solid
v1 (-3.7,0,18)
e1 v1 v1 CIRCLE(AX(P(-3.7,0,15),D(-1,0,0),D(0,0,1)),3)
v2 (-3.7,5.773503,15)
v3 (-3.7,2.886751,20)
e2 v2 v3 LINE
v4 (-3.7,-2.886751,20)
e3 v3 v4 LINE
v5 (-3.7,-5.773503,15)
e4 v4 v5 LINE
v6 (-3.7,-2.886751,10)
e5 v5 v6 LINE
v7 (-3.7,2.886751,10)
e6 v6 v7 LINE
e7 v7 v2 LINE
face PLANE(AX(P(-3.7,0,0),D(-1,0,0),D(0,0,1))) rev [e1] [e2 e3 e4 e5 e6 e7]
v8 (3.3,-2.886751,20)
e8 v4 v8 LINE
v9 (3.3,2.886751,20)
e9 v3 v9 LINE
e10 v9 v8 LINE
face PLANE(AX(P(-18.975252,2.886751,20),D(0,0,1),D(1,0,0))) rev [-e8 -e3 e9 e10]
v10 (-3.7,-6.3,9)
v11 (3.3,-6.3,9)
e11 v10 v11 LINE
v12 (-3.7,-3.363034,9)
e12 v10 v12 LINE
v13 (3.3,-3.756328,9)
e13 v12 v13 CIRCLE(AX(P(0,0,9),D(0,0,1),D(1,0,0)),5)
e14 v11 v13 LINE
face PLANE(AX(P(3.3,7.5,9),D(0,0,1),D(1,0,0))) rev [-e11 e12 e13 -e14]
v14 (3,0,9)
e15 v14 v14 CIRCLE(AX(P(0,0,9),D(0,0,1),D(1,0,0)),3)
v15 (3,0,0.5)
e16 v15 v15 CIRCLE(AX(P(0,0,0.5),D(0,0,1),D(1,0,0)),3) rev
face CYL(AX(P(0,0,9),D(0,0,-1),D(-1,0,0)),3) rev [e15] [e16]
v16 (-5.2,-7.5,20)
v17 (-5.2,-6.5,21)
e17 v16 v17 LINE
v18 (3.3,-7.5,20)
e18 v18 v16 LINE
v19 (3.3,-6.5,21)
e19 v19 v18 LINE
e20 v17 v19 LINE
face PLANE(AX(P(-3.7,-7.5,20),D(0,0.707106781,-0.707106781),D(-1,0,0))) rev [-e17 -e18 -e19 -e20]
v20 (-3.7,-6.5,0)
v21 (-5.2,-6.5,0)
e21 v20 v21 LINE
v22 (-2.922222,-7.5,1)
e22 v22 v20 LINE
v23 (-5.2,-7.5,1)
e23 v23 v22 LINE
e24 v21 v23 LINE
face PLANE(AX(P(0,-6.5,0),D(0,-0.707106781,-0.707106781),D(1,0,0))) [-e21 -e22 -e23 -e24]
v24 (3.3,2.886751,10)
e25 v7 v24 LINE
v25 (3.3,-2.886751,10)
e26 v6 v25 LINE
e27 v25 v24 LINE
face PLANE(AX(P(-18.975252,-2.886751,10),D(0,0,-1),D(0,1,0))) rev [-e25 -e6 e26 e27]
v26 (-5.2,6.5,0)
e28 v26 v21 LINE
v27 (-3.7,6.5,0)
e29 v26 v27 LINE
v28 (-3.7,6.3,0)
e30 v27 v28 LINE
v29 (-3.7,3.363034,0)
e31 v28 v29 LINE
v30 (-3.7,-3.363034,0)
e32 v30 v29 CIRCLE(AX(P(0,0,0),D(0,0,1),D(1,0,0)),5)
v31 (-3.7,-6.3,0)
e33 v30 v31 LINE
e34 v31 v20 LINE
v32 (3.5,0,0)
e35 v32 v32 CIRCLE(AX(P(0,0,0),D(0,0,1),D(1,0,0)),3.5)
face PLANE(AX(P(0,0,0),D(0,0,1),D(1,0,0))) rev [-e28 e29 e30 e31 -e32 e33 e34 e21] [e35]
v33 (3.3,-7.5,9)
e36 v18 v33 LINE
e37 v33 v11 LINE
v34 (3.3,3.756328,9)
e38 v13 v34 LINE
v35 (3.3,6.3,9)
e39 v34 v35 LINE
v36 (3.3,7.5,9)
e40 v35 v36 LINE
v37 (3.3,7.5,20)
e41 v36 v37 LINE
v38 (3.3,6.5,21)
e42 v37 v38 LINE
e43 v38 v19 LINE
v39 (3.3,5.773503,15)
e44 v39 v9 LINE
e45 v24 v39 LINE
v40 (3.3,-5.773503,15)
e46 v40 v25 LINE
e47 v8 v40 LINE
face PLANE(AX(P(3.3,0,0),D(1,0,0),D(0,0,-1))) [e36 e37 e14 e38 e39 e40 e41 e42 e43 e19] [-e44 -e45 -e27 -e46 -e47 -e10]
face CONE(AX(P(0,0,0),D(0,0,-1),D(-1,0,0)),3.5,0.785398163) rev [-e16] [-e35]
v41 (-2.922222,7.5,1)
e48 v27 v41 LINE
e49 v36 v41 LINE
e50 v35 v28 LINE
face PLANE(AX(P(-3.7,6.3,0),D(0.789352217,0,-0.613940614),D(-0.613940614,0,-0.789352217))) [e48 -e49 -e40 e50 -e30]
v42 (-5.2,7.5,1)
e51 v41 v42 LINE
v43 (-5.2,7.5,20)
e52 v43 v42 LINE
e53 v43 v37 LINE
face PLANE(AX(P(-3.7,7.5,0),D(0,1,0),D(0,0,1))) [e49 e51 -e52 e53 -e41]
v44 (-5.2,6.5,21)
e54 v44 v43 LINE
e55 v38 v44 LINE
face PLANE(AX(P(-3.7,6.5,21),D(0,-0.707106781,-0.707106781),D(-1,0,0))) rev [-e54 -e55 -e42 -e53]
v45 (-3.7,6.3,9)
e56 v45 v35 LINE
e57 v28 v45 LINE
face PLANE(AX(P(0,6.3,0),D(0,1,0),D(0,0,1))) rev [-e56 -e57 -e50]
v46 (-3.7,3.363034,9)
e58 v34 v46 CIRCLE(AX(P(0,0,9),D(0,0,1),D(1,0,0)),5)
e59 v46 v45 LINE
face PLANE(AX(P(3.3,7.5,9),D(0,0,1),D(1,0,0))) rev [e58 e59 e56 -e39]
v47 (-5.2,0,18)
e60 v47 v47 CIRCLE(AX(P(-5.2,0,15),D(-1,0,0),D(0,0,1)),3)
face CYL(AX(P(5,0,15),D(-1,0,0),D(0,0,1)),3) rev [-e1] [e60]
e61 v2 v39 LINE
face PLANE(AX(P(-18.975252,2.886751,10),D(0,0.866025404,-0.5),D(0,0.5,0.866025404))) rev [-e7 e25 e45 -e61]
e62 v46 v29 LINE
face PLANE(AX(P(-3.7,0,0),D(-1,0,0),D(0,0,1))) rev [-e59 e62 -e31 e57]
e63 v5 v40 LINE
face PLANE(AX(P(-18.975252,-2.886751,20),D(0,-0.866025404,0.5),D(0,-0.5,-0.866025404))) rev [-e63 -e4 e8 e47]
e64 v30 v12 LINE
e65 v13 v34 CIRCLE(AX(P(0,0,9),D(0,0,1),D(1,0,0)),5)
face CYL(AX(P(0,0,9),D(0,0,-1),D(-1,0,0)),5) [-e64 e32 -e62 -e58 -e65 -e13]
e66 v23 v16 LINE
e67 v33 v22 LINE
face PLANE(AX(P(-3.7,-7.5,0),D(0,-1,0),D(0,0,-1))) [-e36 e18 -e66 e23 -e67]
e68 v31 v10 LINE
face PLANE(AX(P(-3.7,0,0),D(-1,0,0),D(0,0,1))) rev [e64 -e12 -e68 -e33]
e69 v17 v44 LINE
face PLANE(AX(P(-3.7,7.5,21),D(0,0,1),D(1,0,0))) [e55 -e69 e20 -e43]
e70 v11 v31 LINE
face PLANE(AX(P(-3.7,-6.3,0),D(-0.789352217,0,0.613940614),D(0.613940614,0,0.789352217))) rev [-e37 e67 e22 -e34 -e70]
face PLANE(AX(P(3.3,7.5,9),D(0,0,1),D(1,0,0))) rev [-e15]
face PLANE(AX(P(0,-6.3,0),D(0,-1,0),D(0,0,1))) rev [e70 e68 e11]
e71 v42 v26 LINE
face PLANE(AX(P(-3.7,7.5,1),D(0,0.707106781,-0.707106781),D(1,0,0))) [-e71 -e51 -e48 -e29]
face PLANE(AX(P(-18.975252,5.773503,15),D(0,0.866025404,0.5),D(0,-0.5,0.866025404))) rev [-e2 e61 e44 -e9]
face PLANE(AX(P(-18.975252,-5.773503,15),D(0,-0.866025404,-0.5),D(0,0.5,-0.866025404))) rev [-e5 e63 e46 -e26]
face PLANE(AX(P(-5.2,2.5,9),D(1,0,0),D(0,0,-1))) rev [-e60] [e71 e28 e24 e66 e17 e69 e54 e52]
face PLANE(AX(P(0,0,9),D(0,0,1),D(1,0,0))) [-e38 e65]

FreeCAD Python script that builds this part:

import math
import FreeCAD as App
import Part
import Sketcher
Q = App.Units.Quantity


def edges_at(feature, points):
    """Names of the edges that pass closest to the given points."""
    edges = feature.Shape.Edges
    near = lambda p: min(range(len(edges)), key=lambda i: edges[i].distToShape(Part.Vertex(*p))[0])
    return sorted({f"Edge{near(p) + 1}" for p in points})

doc = App.newDocument("Part")
params = doc.addObject("Spreadsheet::Sheet", "Params")
for row, (alias, value) in enumerate([
    ("sketch1_radius", "5 mm"),
    ("sketch1_radius2", "3 mm"),
    ("sketch1_height", "5 mm"),
    ("pad1_length", "9 mm"),
    ("sketch2_width", "15 mm"),
    ("sketch2_height", "21 mm"),
    ("pad2_length", "1.5 mm"),
    ("sketch3_diameter", "6 mm"),
    ("sketch4_width", "15 mm"),
    ("sketch4_height", "12 mm"),
    ("pad3_length", "7 mm"),
    ("pocket2_length", "7 mm"),
    ("chamfer_size", "0.5 mm"),
    ("sketch6_width", "7 mm"),
    ("sketch6_height", "9 mm"),
    ("pad4_length", "1.2 mm"),
    ("chamfer2_size", "1 mm"),
], start=1):
    params.set(f"A{row}", alias)
    params.set(f"B{row}", "=" + value)
    params.setAlias(f"B{row}", alias)

body = doc.addObject("PartDesign::Body", "Body")

# Sketch on XY plane
sketch1 = body.newObject("Sketcher::SketchObject", "Sketch")
sketch1.AttachmentSupport = (doc.getObject("XY_Plane"), [""])
sketch1.MapMode = "FlatFace"
sketch1.addGeometry(Part.LineSegment(App.Vector(-4.3, 2.5, 0), App.Vector(-5.2, 2.5, 0)), False)
sketch1.addGeometry(Part.LineSegment(App.Vector(-5.2, 2.5, 0), App.Vector(-5.2, -2.5, 0)), False)
sketch1.addGeometry(Part.LineSegment(App.Vector(-5.2, -2.5, 0), App.Vector(-4.3, -2.5, 0)), False)
sketch1.addGeometry(Part.ArcOfCircle(Part.Circle(App.Vector(0, 0, 0), App.Vector(0, 0, 1), 5), math.radians(-150), math.radians(-50)), False)
sketch1.addGeometry(Part.ArcOfCircle(Part.Circle(App.Vector(0, 0, 0), App.Vector(0, 0, 1), 5), math.radians(-50), math.radians(50)), False)
sketch1.addGeometry(Part.ArcOfCircle(Part.Circle(App.Vector(0, 0, 0), App.Vector(0, 0, 1), 5), math.radians(50), math.radians(150)), False)
sketch1.addGeometry(Part.ArcOfCircle(Part.Circle(App.Vector(0, 0, 0), App.Vector(0, 0, 1), 3), math.radians(50), math.radians(310)), False)
sketch1.addGeometry(Part.ArcOfCircle(Part.Circle(App.Vector(0, 0, 0), App.Vector(0, 0, 1), 3), math.radians(-50), math.radians(50)), False)
sketch1.addConstraint(Sketcher.Constraint("Coincident", 0, 2, 1, 1))
sketch1.addConstraint(Sketcher.Constraint("Coincident", 1, 2, 2, 1))
sketch1.addConstraint(Sketcher.Constraint("Coincident", 2, 2, 3, 1))
sketch1.addConstraint(Sketcher.Constraint("Tangent", 3, 2, 4, 1))
sketch1.addConstraint(Sketcher.Constraint("Tangent", 4, 2, 5, 1))
sketch1.addConstraint(Sketcher.Constraint("Coincident", 5, 2, 0, 1))
sketch1.addConstraint(Sketcher.Constraint("Tangent", 6, 1, 7, 2))
sketch1.addConstraint(Sketcher.Constraint("Coincident", 7, 1, 6, 2))
sketch1.addConstraint(Sketcher.Constraint("Horizontal", 0))
sketch1.addConstraint(Sketcher.Constraint("Vertical", 1))
sketch1.addConstraint(Sketcher.Constraint("Horizontal", 2))
sketch1.addConstraint(Sketcher.Constraint("Coincident", 3, 3, -1, 1))
sketch1.addConstraint(Sketcher.Constraint("Coincident", 5, 3, -1, 1))
sketch1.addConstraint(Sketcher.Constraint("Coincident", 6, 3, -1, 1))
sketch1.addConstraint(Sketcher.Constraint("Vertical", 3, 2, 4, 2))
sketch1.addConstraint(Sketcher.Constraint("Vertical", 2, 2, 5, 2))
sketch1.addConstraint(Sketcher.Constraint("Vertical", 6, 1, 7, 1))
sketch1.addConstraint(Sketcher.Constraint("Radius", 3, Q("5 mm")))
sketch1.addConstraint(Sketcher.Constraint("Radius", 6, Q("3 mm")))
sketch1.addConstraint(Sketcher.Constraint("DistanceY", 1, 2, 1, 1, Q("5 mm")))
sketch1.addConstraint(Sketcher.Constraint("DistanceX", 0, 2, -1, 1, Q("5.2 mm")))
sketch1.addConstraint(Sketcher.Constraint("DistanceX", -1, 1, 3, 2, Q("3.213938 mm")))
sketch1.addConstraint(Sketcher.Constraint("DistanceY", 6, 1, 4, 2, Q("1.532089 mm")))
sketch1.setExpression("Constraints[17]", "Params.sketch1_radius")
sketch1.setExpression("Constraints[18]", "Params.sketch1_radius2")
sketch1.setExpression("Constraints[19]", "Params.sketch1_height")
pad1 = body.newObject("PartDesign::Pad", "Pad")
pad1.Profile = sketch1
pad1.setExpression("Length", "Params.pad1_length")

# Sketch on YZ plane
sketch2 = body.newObject("Sketcher::SketchObject", "Sketch001")
sketch2.AttachmentSupport = (doc.getObject("YZ_Plane"), [""])
sketch2.MapMode = "FlatFace"
sketch2.AttachmentOffset = App.Placement(App.Vector(0, 0, -5.2), App.Rotation())
sketch2.addGeometry(Part.LineSegment(App.Vector(8, 0, 0), App.Vector(-8, 0, 0)), False)
sketch2.addGeometry(Part.LineSegment(App.Vector(-8, 0, 0), App.Vector(-8, 21, 0)), False)
sketch2.addGeometry(Part.LineSegment(App.Vector(-8, 21, 0), App.Vector(8, 21, 0)), False)
sketch2.addGeometry(Part.LineSegment(App.Vector(8, 21, 0), App.Vector(8, 0, 0)), False)
sketch2.addConstraint(Sketcher.Constraint("Coincident", 0, 2, 1, 1))
sketch2.addConstraint(Sketcher.Constraint("Coincident", 1, 2, 2, 1))
sketch2.addConstraint(Sketcher.Constraint("Coincident", 2, 2, 3, 1))
sketch2.addConstraint(Sketcher.Constraint("Coincident", 3, 2, 0, 1))
sketch2.addConstraint(Sketcher.Constraint("Horizontal", 0))
sketch2.addConstraint(Sketcher.Constraint("Vertical", 1))
sketch2.addConstraint(Sketcher.Constraint("Horizontal", 2))
sketch2.addConstraint(Sketcher.Constraint("Vertical", 3))
sketch2.addConstraint(Sketcher.Constraint("Symmetric", 0, 2, 3, 2, -1, 1))
sketch2.addConstraint(Sketcher.Constraint("DistanceX", 0, 2, 0, 1, Q("15 mm")))
sketch2.addConstraint(Sketcher.Constraint("DistanceY", 1, 1, 1, 2, Q("21 mm")))
sketch2.setExpression("Constraints[9]", "Params.sketch2_width")
sketch2.setExpression("Constraints[10]", "Params.sketch2_height")
pad2 = body.newObject("PartDesign::Pad", "Pad001")
pad2.Profile = sketch2
pad2.setExpression("Length", "Params.pad2_length")

# Sketch on YZ plane
sketch3 = body.newObject("Sketcher::SketchObject", "Sketch002")
sketch3.AttachmentSupport = (doc.getObject("YZ_Plane"), [""])
sketch3.MapMode = "FlatFace"
sketch3.AttachmentOffset = App.Placement(App.Vector(0, 0, -5.2), App.Rotation())
sketch3.addGeometry(Part.Circle(App.Vector(0, 15, 0), App.Vector(0, 0, 1), 3), False)
sketch3.addConstraint(Sketcher.Constraint("PointOnObject", 0, 3, -2))
sketch3.addConstraint(Sketcher.Constraint("Diameter", 0, Q("6 mm")))
sketch3.addConstraint(Sketcher.Constraint("DistanceY", -1, 1, 0, 3, Q("15 mm")))
sketch3.setExpression("Constraints[1]", "Params.sketch3_diameter")
pocket1 = body.newObject("PartDesign::Pocket", "Pocket")
pocket1.Profile = sketch3
pocket1.Type = "ThroughAll"
pocket1.Reversed = True

# Sketch on YZ plane
sketch4 = body.newObject("Sketcher::SketchObject", "Sketch003")
sketch4.AttachmentSupport = (doc.getObject("YZ_Plane"), [""])
sketch4.MapMode = "FlatFace"
sketch4.AttachmentOffset = App.Placement(App.Vector(0, 0, -3.7), App.Rotation())
sketch4.addGeometry(Part.LineSegment(App.Vector(8, 21, 0), App.Vector(-8, 21, 0)), False)
sketch4.addGeometry(Part.LineSegment(App.Vector(-8, 21, 0), App.Vector(-8, 9, 0)), False)
sketch4.addGeometry(Part.LineSegment(App.Vector(-8, 9, 0), App.Vector(8, 9, 0)), False)
sketch4.addGeometry(Part.LineSegment(App.Vector(8, 9, 0), App.Vector(8, 21, 0)), False)
sketch4.addConstraint(Sketcher.Constraint("Coincident", 0, 2, 1, 1))
sketch4.addConstraint(Sketcher.Constraint("Coincident", 1, 2, 2, 1))
sketch4.addConstraint(Sketcher.Constraint("Coincident", 2, 2, 3, 1))
sketch4.addConstraint(Sketcher.Constraint("Coincident", 3, 2, 0, 1))
sketch4.addConstraint(Sketcher.Constraint("Horizontal", 0))
sketch4.addConstraint(Sketcher.Constraint("Vertical", 1))
sketch4.addConstraint(Sketcher.Constraint("Horizontal", 2))
sketch4.addConstraint(Sketcher.Constraint("Vertical", 3))
sketch4.addConstraint(Sketcher.Constraint("DistanceX", 0, 2, 0, 1, Q("15 mm")))
sketch4.addConstraint(Sketcher.Constraint("DistanceY", 1, 2, 1, 1, Q("12 mm")))
sketch4.addConstraint(Sketcher.Constraint("DistanceY", -1, 1, 0, 2, Q("21 mm")))
sketch4.addConstraint(Sketcher.Constraint("DistanceX", 0, 2, -1, 1, Q("7.5 mm")))
sketch4.setExpression("Constraints[8]", "Params.sketch4_width")
sketch4.setExpression("Constraints[9]", "Params.sketch4_height")
pad3 = body.newObject("PartDesign::Pad", "Pad002")
pad3.Profile = sketch4
pad3.setExpression("Length", "Params.pad3_length")

# Sketch on YZ plane
sketch5 = body.newObject("Sketcher::SketchObject", "Sketch004")
sketch5.AttachmentSupport = (doc.getObject("YZ_Plane"), [""])
sketch5.MapMode = "FlatFace"
sketch5.AttachmentOffset = App.Placement(App.Vector(0, 0, 3.3), App.Rotation())
sketch5.addGeometry(Part.LineSegment(App.Vector(-3, 10, 0), App.Vector(3, 10, 0)), False)
sketch5.addGeometry(Part.LineSegment(App.Vector(3, 10, 0), App.Vector(6, 15, 0)), False)
sketch5.addGeometry(Part.LineSegment(App.Vector(6, 15, 0), App.Vector(3, 20, 0)), False)
sketch5.addGeometry(Part.LineSegment(App.Vector(3, 20, 0), App.Vector(-3, 20, 0)), False)
sketch5.addGeometry(Part.LineSegment(App.Vector(-3, 20, 0), App.Vector(-6, 15, 0)), False)
sketch5.addGeometry(Part.LineSegment(App.Vector(-6, 15, 0), App.Vector(-3, 10, 0)), False)
sketch5.addConstraint(Sketcher.Constraint("Coincident", 0, 2, 1, 1))
sketch5.addConstraint(Sketcher.Constraint("Coincident", 1, 2, 2, 1))
sketch5.addConstraint(Sketcher.Constraint("Coincident", 2, 2, 3, 1))
sketch5.addConstraint(Sketcher.Constraint("Coincident", 3, 2, 4, 1))
sketch5.addConstraint(Sketcher.Constraint("Coincident", 4, 2, 5, 1))
sketch5.addConstraint(Sketcher.Constraint("Coincident", 5, 2, 0, 1))
sketch5.addConstraint(Sketcher.Constraint("Horizontal", 0))
sketch5.addConstraint(Sketcher.Constraint("Horizontal", 3))
sketch5.addConstraint(Sketcher.Constraint("Symmetric", 1, 2, 4, 2, -2))
sketch5.addConstraint(Sketcher.Constraint("Parallel", 1, 4))
sketch5.addConstraint(Sketcher.Constraint("Parallel", 2, 5))
sketch5.addConstraint(Sketcher.Constraint("Vertical", 0, 2, 2, 2))
sketch5.addConstraint(Sketcher.Constraint("Vertical", 3, 2, 5, 2))
sketch5.addConstraint(Sketcher.Constraint("Angle", 1, Q("60 deg")))
sketch5.addConstraint(Sketcher.Constraint("DistanceY", -1, 1, 0, 2, Q("10 mm")))
sketch5.addConstraint(Sketcher.Constraint("DistanceY", -1, 1, 1, 2, Q("15 mm")))
sketch5.addConstraint(Sketcher.Constraint("DistanceX", 0, 1, 0, 2, Q("5.773503 mm")))
pocket2 = body.newObject("PartDesign::Pocket", "Pocket001")
pocket2.Profile = sketch5
pocket2.setExpression("Length", "Params.pocket2_length")
doc.recompute()

chamfer = body.newObject("PartDesign::Chamfer", "Chamfer")
chamfer.Base = (pocket2, edges_at(pocket2, [(-3, 0, 0)]))
chamfer.setExpression("Size", "Params.chamfer_size")

# Sketch on XZ plane
sketch6 = body.newObject("Sketcher::SketchObject", "Sketch005")
sketch6.AttachmentSupport = (doc.getObject("XZ_Plane"), [""])
sketch6.MapMode = "FlatFace"
sketch6.AttachmentOffset = App.Placement(App.Vector(0, 0, -7.5), App.Rotation())
sketch6.addGeometry(Part.LineSegment(App.Vector(3, 9, 0), App.Vector(-4, 0, 0)), False)
sketch6.addGeometry(Part.LineSegment(App.Vector(-4, 0, 0), App.Vector(-4, 9, 0)), False)
sketch6.addGeometry(Part.LineSegment(App.Vector(-4, 9, 0), App.Vector(3, 9, 0)), False)
sketch6.addConstraint(Sketcher.Constraint("Coincident", 0, 2, 1, 1))
sketch6.addConstraint(Sketcher.Constraint("Coincident", 1, 2, 2, 1))
sketch6.addConstraint(Sketcher.Constraint("Coincident", 2, 2, 0, 1))
sketch6.addConstraint(Sketcher.Constraint("Vertical", 1))
sketch6.addConstraint(Sketcher.Constraint("Horizontal", 2))
sketch6.addConstraint(Sketcher.Constraint("PointOnObject", 0, 2, -1))
sketch6.addConstraint(Sketcher.Constraint("DistanceX", 2, 1, 2, 2, Q("7 mm")))
sketch6.addConstraint(Sketcher.Constraint("DistanceY", 1, 1, 1, 2, Q("9 mm")))
sketch6.addConstraint(Sketcher.Constraint("DistanceX", 0, 2, -1, 1, Q("3.7 mm")))
sketch6.setExpression("Constraints[6]", "Params.sketch6_width")
sketch6.setExpression("Constraints[7]", "Params.sketch6_height")
pad4 = body.newObject("PartDesign::Pad", "Pad003")
pad4.Profile = sketch6
pad4.setExpression("Length", "Params.pad4_length")
doc.recompute()

mirrored = body.newObject("PartDesign::Mirrored", "Mirrored")
mirrored.Originals = [pad4]
mirrored.MirrorPlane = (doc.getObject("XZ_Plane"), [""])
body.Tip = mirrored
doc.recompute()

chamfer2 = body.newObject("PartDesign::Chamfer", "Chamfer001")
chamfer2.Base = (mirrored, edges_at(mirrored, [
    (-4.45, -7.5, 0),
    (-4.45, 7.5, 0),
    (-0.95, 7.5, 21),
    (-0.95, -7.5, 21),
]))
chamfer2.setExpression("Size", "Params.chamfer2_size")

doc.recompute()
